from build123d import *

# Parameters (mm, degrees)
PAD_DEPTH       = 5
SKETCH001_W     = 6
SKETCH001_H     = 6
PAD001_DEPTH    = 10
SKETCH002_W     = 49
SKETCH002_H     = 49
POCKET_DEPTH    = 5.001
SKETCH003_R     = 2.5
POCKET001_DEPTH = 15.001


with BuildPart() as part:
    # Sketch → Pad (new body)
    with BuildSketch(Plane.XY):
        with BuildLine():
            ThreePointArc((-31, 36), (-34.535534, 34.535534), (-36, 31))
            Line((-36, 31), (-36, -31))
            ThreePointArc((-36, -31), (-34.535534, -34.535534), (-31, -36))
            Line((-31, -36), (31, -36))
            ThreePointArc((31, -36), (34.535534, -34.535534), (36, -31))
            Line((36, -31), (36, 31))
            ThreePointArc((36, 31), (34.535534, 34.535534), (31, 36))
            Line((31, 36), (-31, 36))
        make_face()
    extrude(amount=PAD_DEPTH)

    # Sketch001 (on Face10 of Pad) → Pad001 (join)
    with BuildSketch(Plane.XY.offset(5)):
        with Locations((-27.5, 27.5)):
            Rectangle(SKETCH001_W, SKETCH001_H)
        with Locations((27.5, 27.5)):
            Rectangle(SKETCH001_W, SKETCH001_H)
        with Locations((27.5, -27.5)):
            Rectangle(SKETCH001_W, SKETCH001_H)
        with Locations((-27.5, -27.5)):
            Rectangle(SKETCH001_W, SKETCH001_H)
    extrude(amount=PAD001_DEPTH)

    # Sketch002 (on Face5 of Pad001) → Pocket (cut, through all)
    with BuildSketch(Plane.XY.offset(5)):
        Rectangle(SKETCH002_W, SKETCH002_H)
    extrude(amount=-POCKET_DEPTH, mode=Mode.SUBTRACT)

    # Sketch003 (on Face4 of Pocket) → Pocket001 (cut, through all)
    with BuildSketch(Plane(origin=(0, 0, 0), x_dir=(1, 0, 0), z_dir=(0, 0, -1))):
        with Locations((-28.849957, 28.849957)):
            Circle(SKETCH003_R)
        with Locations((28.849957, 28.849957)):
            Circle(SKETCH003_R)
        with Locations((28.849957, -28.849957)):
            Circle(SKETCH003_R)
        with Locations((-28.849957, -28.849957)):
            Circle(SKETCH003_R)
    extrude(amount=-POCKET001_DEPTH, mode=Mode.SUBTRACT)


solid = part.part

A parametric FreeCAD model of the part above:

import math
import FreeCAD as App
import Part
import Sketcher
from FreeCAD import Vector

doc = App.newDocument("Part")
body = doc.addObject("PartDesign::Body", "Body")

# Sketch on XY plane
sketch1 = doc.addObject("Sketcher::SketchObject", "Sketch")
body.addObject(sketch1)
sketch1.AttachmentSupport = (doc.XY_Plane, [""])
sketch1.MapMode = "FlatFace"
sketch1.addGeometry(Part.ArcOfCircle(Part.Circle(Vector(-31, 31, 0), Vector(0, 0, 1), 5), math.radians(90), math.radians(180)), False)
sketch1.addGeometry(Part.LineSegment(Vector(-36, 31, 0), Vector(-36, -31, 0)), False)
sketch1.addGeometry(Part.ArcOfCircle(Part.Circle(Vector(-31, -31, 0), Vector(0, 0, 1), 5), math.radians(180), math.radians(270)), False)
sketch1.addGeometry(Part.LineSegment(Vector(-31, -36, 0), Vector(31, -36, 0)), False)
sketch1.addGeometry(Part.ArcOfCircle(Part.Circle(Vector(31, -31, 0), Vector(0, 0, 1), 5), math.radians(-90), math.radians(0)), False)
sketch1.addGeometry(Part.LineSegment(Vector(36, -31, 0), Vector(36, 31, 0)), False)
sketch1.addGeometry(Part.ArcOfCircle(Part.Circle(Vector(31, 31, 0), Vector(0, 0, 1), 5), math.radians(0), math.radians(90)), False)
sketch1.addGeometry(Part.LineSegment(Vector(31, 36, 0), Vector(-31, 36, 0)), False)
sketch1.addConstraint(Sketcher.Constraint("Tangent", 0, 2, 1, 1))
sketch1.addConstraint(Sketcher.Constraint("Tangent", 1, 2, 2, 1))
sketch1.addConstraint(Sketcher.Constraint("Tangent", 2, 2, 3, 1))
sketch1.addConstraint(Sketcher.Constraint("Tangent", 3, 2, 4, 1))
sketch1.addConstraint(Sketcher.Constraint("Tangent", 4, 2, 5, 1))
sketch1.addConstraint(Sketcher.Constraint("Tangent", 5, 2, 6, 1))
sketch1.addConstraint(Sketcher.Constraint("Tangent", 6, 2, 7, 1))
sketch1.addConstraint(Sketcher.Constraint("Tangent", 7, 2, 0, 1))
sketch1.addConstraint(Sketcher.Constraint("Vertical", 1))
sketch1.addConstraint(Sketcher.Constraint("Horizontal", 3))
sketch1.addConstraint(Sketcher.Constraint("Vertical", 5))
sketch1.addConstraint(Sketcher.Constraint("Horizontal", 7))
sketch1.addConstraint(Sketcher.Constraint("Equal", 0, 2))
sketch1.addConstraint(Sketcher.Constraint("Equal", 2, 4))
sketch1.addConstraint(Sketcher.Constraint("Equal", 4, 6))
sketch1.addConstraint(Sketcher.Constraint("Symmetric", 0, 3, 4, 3, -1, 1))
sketch1.addConstraint(Sketcher.Constraint("Equal", 7, 1))
sketch1.addConstraint(Sketcher.Constraint("Radius", 0, 5.0))
sketch1.addConstraint(Sketcher.Constraint("DistanceX", 3, 1, 3, 2, 62.0))
pad1 = doc.addObject("PartDesign::Pad", "Pad")
body.addObject(pad1)
pad1.Profile = sketch1
pad1.Length = 5

# Sketch on XY plane
sketch2 = doc.addObject("Sketcher::SketchObject", "Sketch001")
body.addObject(sketch2)
sketch2.AttachmentSupport = (doc.XY_Plane, [""])
sketch2.MapMode = "FlatFace"
sketch2.AttachmentOffset = App.Placement(Vector(0, 0, 5), App.Rotation())
sketch2.addGeometry(Part.LineSegment(Vector(-30, 30, 0), Vector(-30, 24, 0)), False)
sketch2.addGeometry(Part.LineSegment(Vector(-30, 24, 0), Vector(-24, 24, 0)), False)
sketch2.addGeometry(Part.LineSegment(Vector(-24, 24, 0), Vector(-24, 30, 0)), False)
sketch2.addGeometry(Part.LineSegment(Vector(-24, 30, 0), Vector(-30, 30, 0)), False)
sketch2.addGeometry(Part.LineSegment(Vector(24, 30, 0), Vector(24, 24, 0)), False)
sketch2.addGeometry(Part.LineSegment(Vector(24, 24, 0), Vector(30, 24, 0)), False)
sketch2.addGeometry(Part.LineSegment(Vector(30, 24, 0), Vector(30, 30, 0)), False)
sketch2.addGeometry(Part.LineSegment(Vector(30, 30, 0), Vector(24, 30, 0)), False)
sketch2.addGeometry(Part.LineSegment(Vector(24, -24, 0), Vector(24, -30, 0)), False)
sketch2.addGeometry(Part.LineSegment(Vector(24, -30, 0), Vector(30, -30, 0)), False)
sketch2.addGeometry(Part.LineSegment(Vector(30, -30, 0), Vector(30, -24, 0)), False)
sketch2.addGeometry(Part.LineSegment(Vector(30, -24, 0), Vector(24, -24, 0)), False)
sketch2.addGeometry(Part.LineSegment(Vector(-30, -24, 0), Vector(-30, -30, 0)), False)
sketch2.addGeometry(Part.LineSegment(Vector(-30, -30, 0), Vector(-24, -30, 0)), False)
sketch2.addGeometry(Part.LineSegment(Vector(-24, -30, 0), Vector(-24, -24, 0)), False)
sketch2.addGeometry(Part.LineSegment(Vector(-24, -24, 0), Vector(-30, -24, 0)), False)
sketch2.addConstraint(Sketcher.Constraint("Coincident", 0, 2, 1, 1))
sketch2.addConstraint(Sketcher.Constraint("Coincident", 1, 2, 2, 1))
sketch2.addConstraint(Sketcher.Constraint("Coincident", 2, 2, 3, 1))
sketch2.addConstraint(Sketcher.Constraint("Coincident", 3, 2, 0, 1))
sketch2.addConstraint(Sketcher.Constraint("Coincident", 4, 2, 5, 1))
sketch2.addConstraint(Sketcher.Constraint("Coincident", 5, 2, 6, 1))
sketch2.addConstraint(Sketcher.Constraint("Coincident", 6, 2, 7, 1))
sketch2.addConstraint(Sketcher.Constraint("Coincident", 7, 2, 4, 1))
sketch2.addConstraint(Sketcher.Constraint("Coincident", 8, 2, 9, 1))
sketch2.addConstraint(Sketcher.Constraint("Coincident", 9, 2, 10, 1))
sketch2.addConstraint(Sketcher.Constraint("Coincident", 10, 2, 11, 1))
sketch2.addConstraint(Sketcher.Constraint("Coincident", 11, 2, 8, 1))
sketch2.addConstraint(Sketcher.Constraint("Coincident", 12, 2, 13, 1))
sketch2.addConstraint(Sketcher.Constraint("Coincident", 13, 2, 14, 1))
sketch2.addConstraint(Sketcher.Constraint("Coincident", 14, 2, 15, 1))
sketch2.addConstraint(Sketcher.Constraint("Coincident", 15, 2, 12, 1))
sketch2.addConstraint(Sketcher.Constraint("Vertical", 0))
sketch2.addConstraint(Sketcher.Constraint("Horizontal", 1))
sketch2.addConstraint(Sketcher.Constraint("Vertical", 2))
sketch2.addConstraint(Sketcher.Constraint("Horizontal", 3))
sketch2.addConstraint(Sketcher.Constraint("Vertical", 4))
sketch2.addConstraint(Sketcher.Constraint("Horizontal", 5))
sketch2.addConstraint(Sketcher.Constraint("Vertical", 6))
sketch2.addConstraint(Sketcher.Constraint("Horizontal", 7))
sketch2.addConstraint(Sketcher.Constraint("Vertical", 8))
sketch2.addConstraint(Sketcher.Constraint("Horizontal", 9))
sketch2.addConstraint(Sketcher.Constraint("Vertical", 10))
sketch2.addConstraint(Sketcher.Constraint("Horizontal", 11))
sketch2.addConstraint(Sketcher.Constraint("Vertical", 12))
sketch2.addConstraint(Sketcher.Constraint("Horizontal", 13))
sketch2.addConstraint(Sketcher.Constraint("Vertical", 14))
sketch2.addConstraint(Sketcher.Constraint("Horizontal", 15))
sketch2.addConstraint(Sketcher.Constraint("Symmetric", 2, 2, 8, 2, -1, 1))
sketch2.addConstraint(Sketcher.Constraint("Symmetric", 0, 2, 10, 2, -1, 1))
sketch2.addConstraint(Sketcher.Constraint("Symmetric", 6, 2, 12, 2, -1, 1))
sketch2.addConstraint(Sketcher.Constraint("Symmetric", 4, 2, 14, 2, -1, 1))
sketch2.addConstraint(Sketcher.Constraint("Symmetric", 1, 2, 4, 2, -2))
sketch2.addConstraint(Sketcher.Constraint("Symmetric", 3, 2, 6, 2, -2))
sketch2.addConstraint(Sketcher.Constraint("Equal", 15, 0))
sketch2.addConstraint(Sketcher.Constraint("DistanceX", 1, 1, 1, 2, 6.0))
sketch2.addConstraint(Sketcher.Constraint("DistanceX", 1, 2, 4, 2, 49.0))
sketch2.addConstraint(Sketcher.Constraint("DistanceY", 8, 2, 4, 2, 55.0))
pad2 = doc.addObject("PartDesign::Pad", "Pad001")
body.addObject(pad2)
pad2.Profile = sketch2
pad2.Length = 10

# Sketch on XY plane
sketch3 = doc.addObject("Sketcher::SketchObject", "Sketch002")
body.addObject(sketch3)
sketch3.AttachmentSupport = (doc.XY_Plane, [""])
sketch3.MapMode = "FlatFace"
sketch3.AttachmentOffset = App.Placement(Vector(0, 0, 5), App.Rotation())
sketch3.addGeometry(Part.LineSegment(Vector(-24, 24, 0), Vector(-24, -24, 0)), False)
sketch3.addGeometry(Part.LineSegment(Vector(-24, -24, 0), Vector(24, -24, 0)), False)
sketch3.addGeometry(Part.LineSegment(Vector(24, -24, 0), Vector(24, 24, 0)), False)
sketch3.addGeometry(Part.LineSegment(Vector(24, 24, 0), Vector(-24, 24, 0)), False)
sketch3.addConstraint(Sketcher.Constraint("Coincident", 0, 2, 1, 1))
sketch3.addConstraint(Sketcher.Constraint("Coincident", 1, 2, 2, 1))
sketch3.addConstraint(Sketcher.Constraint("Coincident", 2, 2, 3, 1))
sketch3.addConstraint(Sketcher.Constraint("Coincident", 3, 2, 0, 1))
sketch3.addConstraint(Sketcher.Constraint("Vertical", 0))
sketch3.addConstraint(Sketcher.Constraint("Horizontal", 1))
sketch3.addConstraint(Sketcher.Constraint("Vertical", 2))
sketch3.addConstraint(Sketcher.Constraint("Horizontal", 3))
sketch3.addConstraint(Sketcher.Constraint("Symmetric", 0, 2, 2, 2, -1, 1))
sketch3.addConstraint(Sketcher.Constraint("Equal", 3, 0))
sketch3.addConstraint(Sketcher.Constraint("DistanceX", 1, 1, 1, 2, 49.0))
pocket1 = doc.addObject("PartDesign::Pocket", "Pocket")
body.addObject(pocket1)
pocket1.Profile = sketch3
pocket1.Type = "ThroughAll"

# Sketch on XY plane
sketch4 = doc.addObject("Sketcher::SketchObject", "Sketch003")
body.addObject(sketch4)
sketch4.AttachmentSupport = (doc.XY_Plane, [""])
sketch4.MapMode = "FlatFace"
sketch4.addGeometry(Part.Circle(Vector(-28.8, -28.8, 0), Vector(0, 0, 1), 2.5), False)
sketch4.addGeometry(Part.Circle(Vector(28.8, -28.8, 0), Vector(0, 0, 1), 2.5), False)
sketch4.addGeometry(Part.Circle(Vector(28.8, 28.8, 0), Vector(0, 0, 1), 2.5), False)
sketch4.addGeometry(Part.Circle(Vector(-28.8, 28.8, 0), Vector(0, 0, 1), 2.5), False)
sketch4.addConstraint(Sketcher.Constraint("Equal", 0, 1))
sketch4.addConstraint(Sketcher.Constraint("Equal", 1, 2))
sketch4.addConstraint(Sketcher.Constraint("Equal", 2, 3))
sketch4.addConstraint(Sketcher.Constraint("Symmetric", 0, 3, 2, 3, -1, 1))
sketch4.addConstraint(Sketcher.Constraint("Symmetric", 1, 3, 3, 3, -1, 1))
sketch4.addConstraint(Sketcher.Constraint("Symmetric", 0, 3, 1, 3, -2))
sketch4.addConstraint(Sketcher.Constraint("Diameter", 0, 5.0))
sketch4.addConstraint(Sketcher.Constraint("DistanceX", 0, 3, -1, 1, 28.849957))
sketch4.addConstraint(Sketcher.Constraint("DistanceY", 0, 3, -1, 1, 28.849957))
pocket2 = doc.addObject("PartDesign::Pocket", "Pocket001")
body.addObject(pocket2)
pocket2.Profile = sketch4
pocket2.Type = "ThroughAll"
pocket2.Reversed = True

doc.recompute()
